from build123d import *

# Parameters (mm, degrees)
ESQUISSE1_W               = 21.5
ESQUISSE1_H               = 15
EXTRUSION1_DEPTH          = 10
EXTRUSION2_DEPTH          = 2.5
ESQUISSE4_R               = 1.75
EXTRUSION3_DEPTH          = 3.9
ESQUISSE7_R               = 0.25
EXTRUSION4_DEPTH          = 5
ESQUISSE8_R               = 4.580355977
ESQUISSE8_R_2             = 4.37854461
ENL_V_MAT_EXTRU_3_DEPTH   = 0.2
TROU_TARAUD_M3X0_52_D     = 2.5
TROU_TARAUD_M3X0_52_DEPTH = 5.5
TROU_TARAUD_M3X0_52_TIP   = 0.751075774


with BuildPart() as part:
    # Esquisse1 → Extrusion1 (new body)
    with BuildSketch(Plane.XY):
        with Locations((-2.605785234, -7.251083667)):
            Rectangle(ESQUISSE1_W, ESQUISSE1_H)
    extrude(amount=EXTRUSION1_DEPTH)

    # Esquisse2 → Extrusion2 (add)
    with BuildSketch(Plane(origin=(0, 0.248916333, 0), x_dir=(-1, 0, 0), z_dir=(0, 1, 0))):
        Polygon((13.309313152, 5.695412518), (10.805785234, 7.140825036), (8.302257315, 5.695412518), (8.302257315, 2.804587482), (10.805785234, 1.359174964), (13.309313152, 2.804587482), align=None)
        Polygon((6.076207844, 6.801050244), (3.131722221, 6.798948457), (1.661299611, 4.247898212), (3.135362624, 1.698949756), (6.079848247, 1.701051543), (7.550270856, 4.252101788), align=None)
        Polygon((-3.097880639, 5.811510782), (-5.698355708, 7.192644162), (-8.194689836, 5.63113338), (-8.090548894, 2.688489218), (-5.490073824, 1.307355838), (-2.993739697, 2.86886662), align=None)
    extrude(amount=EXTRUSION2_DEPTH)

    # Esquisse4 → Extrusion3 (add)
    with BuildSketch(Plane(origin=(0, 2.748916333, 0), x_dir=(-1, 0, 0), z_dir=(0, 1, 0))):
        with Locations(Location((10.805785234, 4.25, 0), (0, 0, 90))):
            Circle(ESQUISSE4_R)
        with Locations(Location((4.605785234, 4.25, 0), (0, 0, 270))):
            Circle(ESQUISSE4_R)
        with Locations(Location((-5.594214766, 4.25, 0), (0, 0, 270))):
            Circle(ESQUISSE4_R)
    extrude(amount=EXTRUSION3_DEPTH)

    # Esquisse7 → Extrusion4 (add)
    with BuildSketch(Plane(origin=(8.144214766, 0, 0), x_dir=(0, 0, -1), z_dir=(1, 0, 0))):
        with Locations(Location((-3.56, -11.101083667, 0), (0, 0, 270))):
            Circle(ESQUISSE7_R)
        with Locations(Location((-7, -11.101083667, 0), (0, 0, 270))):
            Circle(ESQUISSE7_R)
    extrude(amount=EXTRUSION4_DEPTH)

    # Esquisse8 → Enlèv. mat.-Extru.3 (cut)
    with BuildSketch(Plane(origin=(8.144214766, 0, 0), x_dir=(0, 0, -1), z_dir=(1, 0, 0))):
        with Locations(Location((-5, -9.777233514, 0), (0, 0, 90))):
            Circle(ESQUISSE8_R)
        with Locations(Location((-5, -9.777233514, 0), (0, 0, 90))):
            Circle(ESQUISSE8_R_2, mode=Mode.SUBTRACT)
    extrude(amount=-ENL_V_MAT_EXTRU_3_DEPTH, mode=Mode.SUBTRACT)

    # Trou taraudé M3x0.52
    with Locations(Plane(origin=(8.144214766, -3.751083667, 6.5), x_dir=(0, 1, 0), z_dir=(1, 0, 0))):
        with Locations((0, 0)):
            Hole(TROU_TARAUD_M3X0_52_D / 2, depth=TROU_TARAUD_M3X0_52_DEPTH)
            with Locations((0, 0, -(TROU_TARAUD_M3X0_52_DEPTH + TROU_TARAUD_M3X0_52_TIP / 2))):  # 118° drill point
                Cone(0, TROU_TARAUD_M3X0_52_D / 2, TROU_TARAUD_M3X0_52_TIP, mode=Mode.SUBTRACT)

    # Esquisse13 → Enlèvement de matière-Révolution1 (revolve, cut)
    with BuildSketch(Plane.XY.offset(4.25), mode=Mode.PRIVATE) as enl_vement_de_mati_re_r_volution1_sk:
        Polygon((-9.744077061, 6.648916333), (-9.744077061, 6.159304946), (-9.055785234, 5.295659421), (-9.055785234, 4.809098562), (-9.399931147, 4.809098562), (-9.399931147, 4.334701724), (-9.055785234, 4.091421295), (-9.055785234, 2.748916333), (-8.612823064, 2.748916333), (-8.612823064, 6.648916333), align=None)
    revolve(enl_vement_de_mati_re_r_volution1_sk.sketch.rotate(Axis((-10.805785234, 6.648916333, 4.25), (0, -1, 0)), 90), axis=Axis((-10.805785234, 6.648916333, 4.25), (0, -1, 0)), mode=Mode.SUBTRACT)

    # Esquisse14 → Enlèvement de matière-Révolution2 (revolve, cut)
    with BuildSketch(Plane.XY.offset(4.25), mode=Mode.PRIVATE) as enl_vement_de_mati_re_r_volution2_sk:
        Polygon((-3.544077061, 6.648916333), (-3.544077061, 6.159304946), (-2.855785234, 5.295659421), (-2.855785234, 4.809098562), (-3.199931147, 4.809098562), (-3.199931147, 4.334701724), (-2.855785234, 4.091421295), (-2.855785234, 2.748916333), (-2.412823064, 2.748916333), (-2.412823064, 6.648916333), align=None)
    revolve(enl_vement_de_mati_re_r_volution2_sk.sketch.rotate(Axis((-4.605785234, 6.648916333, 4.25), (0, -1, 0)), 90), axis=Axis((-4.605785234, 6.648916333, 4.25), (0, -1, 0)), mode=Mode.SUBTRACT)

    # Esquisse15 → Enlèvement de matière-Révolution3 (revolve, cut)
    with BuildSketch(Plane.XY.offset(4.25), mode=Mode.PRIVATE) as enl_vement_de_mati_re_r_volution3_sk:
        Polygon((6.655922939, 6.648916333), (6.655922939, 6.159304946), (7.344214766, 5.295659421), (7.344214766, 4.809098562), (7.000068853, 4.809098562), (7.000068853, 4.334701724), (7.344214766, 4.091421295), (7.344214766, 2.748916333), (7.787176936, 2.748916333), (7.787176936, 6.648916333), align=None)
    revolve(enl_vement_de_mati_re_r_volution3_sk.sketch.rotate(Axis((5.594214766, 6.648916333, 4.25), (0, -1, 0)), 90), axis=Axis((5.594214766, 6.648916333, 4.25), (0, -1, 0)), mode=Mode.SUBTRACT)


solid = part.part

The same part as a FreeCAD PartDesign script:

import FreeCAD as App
import Part
import Sketcher
from FreeCAD import Vector
Q = App.Units.Quantity


def add_polygon(sketch, points):
    """Adds a closed chain of lines whose ends are joined by coincident constraints."""
    first, n = sketch.GeometryCount, len(points)
    for a, b in zip(points, points[1:] + points[:1]):
        sketch.addGeometry(Part.LineSegment(App.Vector(*a, 0), App.Vector(*b, 0)), False)
    for i in range(n):
        sketch.addConstraint(Sketcher.Constraint("Coincident", first + i, 2, first + (i + 1) % n, 1))

doc = App.newDocument("Part")
body = doc.addObject("PartDesign::Body", "Body")

# Sketch on XY plane
sketch1 = body.newObject("Sketcher::SketchObject", "Sketch")
sketch1.AttachmentSupport = (doc.getObject("XY_Plane"), [""])
sketch1.MapMode = "FlatFace"
add_polygon(sketch1, [(-13.355785, 0.248916), (-13.355785, -14.751084), (8.144215, -14.751084), (8.144215, 0.248916)])  # lines 0-3
sketch1.addConstraint([
    Sketcher.Constraint("Vertical", 0),
    Sketcher.Constraint("Horizontal", 1),
    Sketcher.Constraint("Vertical", 2),
    Sketcher.Constraint("Horizontal", 3),
    Sketcher.Constraint("DistanceY", 0, 2, 0, 1, 15.0),
    Sketcher.Constraint("DistanceX", 1, 1, 1, 2, 21.5),
    Sketcher.Constraint("DistanceX", 0, 2, -1, 1, 13.355785),
    Sketcher.Constraint("DistanceY", 0, 2, -1, 1, 14.751084),
])
pad1 = body.newObject("PartDesign::Pad", "Pad")
pad1.Profile = sketch1
pad1.Length = 10

# Sketch on XZ plane
sketch2 = body.newObject("Sketcher::SketchObject", "Sketch001")
sketch2.AttachmentSupport = (doc.getObject("XZ_Plane"), [""])
sketch2.MapMode = "FlatFace"
sketch2.AttachmentOffset = App.Placement(Vector(0, 0, -0.248916), App.Rotation())
add_polygon(sketch2, [(-13.309313, 5.695413), (-10.805785, 7.140825), (-8.302257, 5.695413), (-8.302257, 2.804587), (-10.805785, 1.359175), (-13.309313, 2.804587)])  # lines 0-5
add_polygon(sketch2, [(-6.076208, 6.80105), (-3.131722, 6.798948), (-1.6613, 4.247898), (-3.135363, 1.69895), (-6.079848, 1.701052), (-7.550271, 4.252102)])  # lines 6-11
add_polygon(sketch2, [(3.097881, 5.811511), (5.698356, 7.192644), (8.19469, 5.631133), (8.090549, 2.688489), (5.490074, 1.307356), (2.99374, 2.868867)])  # lines 12-17
sketch2.addConstraint([
    Sketcher.Constraint("Vertical", 2),
    Sketcher.Constraint("Vertical", 5),
    Sketcher.Constraint("Parallel", 0, 3),
    Sketcher.Constraint("Parallel", 1, 4),
    Sketcher.Constraint("Parallel", 6, 9),
    Sketcher.Constraint("Parallel", 7, 10),
    Sketcher.Constraint("Parallel", 8, 11),
    Sketcher.Constraint("Parallel", 12, 15),
    Sketcher.Constraint("Parallel", 13, 16),
    Sketcher.Constraint("Parallel", 14, 17),
    Sketcher.Constraint("Horizontal", 2, 2, 4, 2),
    Sketcher.Constraint("Horizontal", 1, 2, 5, 2),
    Sketcher.Constraint("Vertical", 0, 2, 3, 2),
    Sketcher.Constraint("Equal", 6, 7),
    Sketcher.Constraint("Equal", 7, 8),
    Sketcher.Constraint("Equal", 8, 9),
    Sketcher.Constraint("Equal", 11, 12),
    Sketcher.Constraint("Equal", 12, 13),
    Sketcher.Constraint("Equal", 13, 14),
    Sketcher.Constraint("Equal", 14, 15),
    Sketcher.Constraint("Angle", 0, Q("30 deg")),
    Sketcher.Constraint("DistanceY", 8, 2, 6, 2, 5.099999),
    Sketcher.Constraint("DistanceX", 7, 2, -1, 1, 1.6613),
    Sketcher.Constraint("DistanceY", -1, 1, 7, 2, 4.247898),
    Sketcher.Constraint("DistanceY", -1, 1, 10, 2, 4.252102),
    Sketcher.Constraint("DistanceY", 8, 2, 9, 2, 0.002102),
    Sketcher.Constraint("DistanceY", 2, 2, 2, 1, 2.890825),
    Sketcher.Constraint("DistanceX", 9, 2, -1, 1, 6.079848),
    Sketcher.Constraint("DistanceX", -1, 1, 13, 2, 8.19469),
    Sketcher.Constraint("DistanceX", -1, 1, 14, 2, 8.090549),
    Sketcher.Constraint("DistanceY", -1, 1, 14, 2, 2.688489),
    Sketcher.Constraint("DistanceX", -1, 1, 16, 2, 2.99374),
    Sketcher.Constraint("DistanceY", -1, 1, 17, 2, 5.811511),
    Sketcher.Constraint("DistanceY", 3, 2, 0, 2, 5.78165),
    Sketcher.Constraint("DistanceY", 2, 2, 6, 2, 3.994361),
    Sketcher.Constraint("DistanceX", 5, 2, 6, 2, 10.177591),
])
pad2 = body.newObject("PartDesign::Pad", "Pad001")
pad2.Profile = sketch2
pad2.Length = 2.5
pad2.Reversed = True

# Sketch on XZ plane
sketch3 = body.newObject("Sketcher::SketchObject", "Sketch002")
sketch3.AttachmentSupport = (doc.getObject("XZ_Plane"), [""])
sketch3.MapMode = "FlatFace"
sketch3.AttachmentOffset = App.Placement(Vector(0, 0, -2.748916), App.Rotation())
sketch3.addGeometry([
    Part.Circle(Vector(-10.805785, 4.25, 0), Vector(0, 0, 1), 1.75),
    Part.Circle(Vector(-4.605785, 4.25, 0), Vector(0, 0, 1), 1.75),
    Part.Circle(Vector(5.594215, 4.25, 0), Vector(0, 0, 1), 1.75),
], False)
sketch3.addConstraint([
    Sketcher.Constraint("Equal", 0, 1),
    Sketcher.Constraint("Equal", 1, 2),
    Sketcher.Constraint("Horizontal", 0, 3, 1, 3),
    Sketcher.Constraint("Horizontal", 1, 3, 2, 3),
    Sketcher.Constraint("Diameter", 0, 3.5),
    Sketcher.Constraint("DistanceX", 0, 3, 1, 3, 6.2),
    Sketcher.Constraint("DistanceX", 1, 3, 2, 3, 10.2),
    Sketcher.Constraint("DistanceY", -1, 1, 0, 3, 4.25),
    Sketcher.Constraint("DistanceX", 0, 3, -1, 1, 10.805785),
])
pad3 = body.newObject("PartDesign::Pad", "Pad002")
pad3.Profile = sketch3
pad3.Length = 3.9
pad3.Reversed = True

# Sketch on YZ plane
sketch4 = body.newObject("Sketcher::SketchObject", "Sketch003")
sketch4.AttachmentSupport = (doc.getObject("YZ_Plane"), [""])
sketch4.MapMode = "FlatFace"
sketch4.AttachmentOffset = App.Placement(Vector(0, 0, 8.144215), App.Rotation())
sketch4.addGeometry([
    Part.Circle(Vector(-11.101084, 3.56, 0), Vector(0, 0, 1), 0.25),
    Part.Circle(Vector(-11.101084, 7, 0), Vector(0, 0, 1), 0.25),
], False)
sketch4.addConstraint([
    Sketcher.Constraint("Equal", 0, 1),
    Sketcher.Constraint("Vertical", 0, 3, 1, 3),
    Sketcher.Constraint("Diameter", 0, 0.5),
    Sketcher.Constraint("DistanceY", -1, 1, 1, 3, 7.0),
    Sketcher.Constraint("DistanceY", -1, 1, 0, 3, 3.56),
    Sketcher.Constraint("DistanceX", 0, 3, -1, 1, 11.101084),
])
pad4 = body.newObject("PartDesign::Pad", "Pad003")
pad4.Profile = sketch4
pad4.Length = 5

# Sketch on YZ plane
sketch5 = body.newObject("Sketcher::SketchObject", "Sketch004")
sketch5.AttachmentSupport = (doc.getObject("YZ_Plane"), [""])
sketch5.MapMode = "FlatFace"
sketch5.AttachmentOffset = App.Placement(Vector(0, 0, 8.144215), App.Rotation())
sketch5.addGeometry([
    Part.Circle(Vector(-9.777234, 5, 0), Vector(0, 0, 1), 4.580356),
    Part.Circle(Vector(-9.777234, 5, 0), Vector(0, 0, 1), 4.378545),
], False)
sketch5.addConstraint([
    Sketcher.Constraint("Coincident", 1, 3, 0, 3),
    Sketcher.Constraint("DistanceY", -1, 1, 0, 3, 5.0),
    Sketcher.Constraint("Diameter", 0, 9.160712),
    Sketcher.Constraint("Diameter", 1, 8.757089),
    Sketcher.Constraint("DistanceX", 0, 3, -1, 1, 9.777234),
])
pocket1 = body.newObject("PartDesign::Pocket", "Pocket")
pocket1.Profile = sketch5
pocket1.Length = 0.2

# Sketch on YZ plane
sketch6 = body.newObject("Sketcher::SketchObject", "Sketch005")
sketch6.AttachmentSupport = (doc.getObject("YZ_Plane"), [""])
sketch6.MapMode = "FlatFace"
sketch6.AttachmentOffset = App.Placement(Vector(0, 0, 8.144215), App.Rotation())
sketch6.addGeometry(Part.Circle(Vector(-3.751084, 6.5, 0), Vector(0, 0, 1), 1.25), False)
sketch6.addConstraint([
    Sketcher.Constraint("Diameter", 0, 2.5),
    Sketcher.Constraint("DistanceY", -1, 1, 0, 3, 6.5),
    Sketcher.Constraint("DistanceX", 0, 3, -1, 1, 3.751084),
])
doc.recompute()
hole = body.newObject("PartDesign::Hole", "Hole")
hole.Profile = sketch6
hole.ThreadType = "None"
hole.Diameter = 2.5
hole.DepthType = "Dimension"
hole.Depth = 5.5
hole.DrillPoint = "Angled"
hole.DrillPointAngle = 118

# Sketch on XY plane
sketch7 = body.newObject("Sketcher::SketchObject", "Sketch006")
sketch7.AttachmentSupport = (doc.getObject("XY_Plane"), [""])
sketch7.MapMode = "FlatFace"
sketch7.AttachmentOffset = App.Placement(Vector(0, 0, 4.25), App.Rotation())
add_polygon(sketch7, [(-9.744077, 6.648916), (-9.744077, 6.159305), (-9.055785, 5.295659), (-9.055785, 4.809099), (-9.399931, 4.809099), (-9.399931, 4.334702), (-9.055785, 4.091421), (-9.055785, 2.748916), (-8.612823, 2.748916), (-8.612823, 6.648916)])  # lines 0-9
sketch7.addGeometry(Part.LineSegment(Vector(-10.805785, 6.648916, 0), Vector(-10.805785, 2.748916, 0)), True)  # axis
sketch7.addConstraint([
    Sketcher.Constraint("Vertical", 0),
    Sketcher.Constraint("Vertical", 2),
    Sketcher.Constraint("Horizontal", 3),
    Sketcher.Constraint("Vertical", 4),
    Sketcher.Constraint("Vertical", 6),
    Sketcher.Constraint("Horizontal", 7),
    Sketcher.Constraint("Vertical", 8),
    Sketcher.Constraint("Horizontal", 9),
    Sketcher.Constraint("Vertical", 10),
    Sketcher.Constraint("Horizontal", 9, 2, 10, 1),
    Sketcher.Constraint("Horizontal", 7, 2, 10, 2),
    Sketcher.Constraint("Vertical", 2, 2, 5, 2),
    Sketcher.Constraint("DistanceY", 8, 1, 8, 2, 3.9),
    Sketcher.Constraint("DistanceX", 10, 1, 1, 2, 1.75),
    Sketcher.Constraint("DistanceY", 0, 2, 0, 1, 0.489611),
    Sketcher.Constraint("DistanceY", 2, 2, 2, 1, 0.486561),
    Sketcher.Constraint("DistanceY", -1, 1, 2, 2, 4.809099),
    Sketcher.Constraint("DistanceY", -1, 1, 4, 2, 4.334702),
    Sketcher.Constraint("Distance", 1, 1.104368),
    Sketcher.Constraint("Distance", 5, 0.421452),
    Sketcher.Constraint("DistanceX", 3, 2, 3, 1, 0.344146),
    Sketcher.Constraint("DistanceX", 7, 1, 7, 2, 0.442962),
    Sketcher.Constraint("DistanceX", 9, 2, 9, 1, 1.131254),
    Sketcher.Constraint("DistanceX", 3, 2, -1, 1, 9.399931),
])
groove = body.newObject("PartDesign::Groove", "Groove")
groove.Profile = sketch7
groove.ReferenceAxis = (sketch7, ["Axis0"])
groove.Angle = 360

# Sketch on XY plane
sketch8 = body.newObject("Sketcher::SketchObject", "Sketch007")
sketch8.AttachmentSupport = (doc.getObject("XY_Plane"), [""])
sketch8.MapMode = "FlatFace"
sketch8.AttachmentOffset = App.Placement(Vector(0, 0, 4.25), App.Rotation())
add_polygon(sketch8, [(-3.544077, 6.648916), (-3.544077, 6.159305), (-2.855785, 5.295659), (-2.855785, 4.809099), (-3.199931, 4.809099), (-3.199931, 4.334702), (-2.855785, 4.091421), (-2.855785, 2.748916), (-2.412823, 2.748916), (-2.412823, 6.648916)])  # lines 0-9
sketch8.addGeometry(Part.LineSegment(Vector(-4.605785, 6.648916, 0), Vector(-4.605785, 2.748916, 0)), True)  # axis
sketch8.addConstraint([
    Sketcher.Constraint("Vertical", 0),
    Sketcher.Constraint("Vertical", 2),
    Sketcher.Constraint("Horizontal", 3),
    Sketcher.Constraint("Vertical", 4),
    Sketcher.Constraint("Vertical", 6),
    Sketcher.Constraint("Horizontal", 7),
    Sketcher.Constraint("Vertical", 8),
    Sketcher.Constraint("Horizontal", 9),
    Sketcher.Constraint("Vertical", 10),
    Sketcher.Constraint("Horizontal", 9, 2, 10, 1),
    Sketcher.Constraint("Horizontal", 7, 2, 10, 2),
    Sketcher.Constraint("Vertical", 2, 2, 5, 2),
    Sketcher.Constraint("DistanceY", 8, 1, 8, 2, 3.9),
    Sketcher.Constraint("DistanceX", 10, 1, 1, 2, 1.75),
    Sketcher.Constraint("DistanceY", 0, 2, 0, 1, 0.489611),
    Sketcher.Constraint("DistanceY", 2, 2, 2, 1, 0.486561),
    Sketcher.Constraint("DistanceY", -1, 1, 2, 2, 4.809099),
    Sketcher.Constraint("DistanceY", -1, 1, 4, 2, 4.334702),
    Sketcher.Constraint("Distance", 1, 1.104368),
    Sketcher.Constraint("Distance", 5, 0.421452),
    Sketcher.Constraint("DistanceX", 3, 2, 3, 1, 0.344146),
    Sketcher.Constraint("DistanceX", 7, 1, 7, 2, 0.442962),
    Sketcher.Constraint("DistanceX", 9, 2, 9, 1, 1.131254),
    Sketcher.Constraint("DistanceX", 3, 2, -1, 1, 3.199931),
])
groove2 = body.newObject("PartDesign::Groove", "Groove001")
groove2.Profile = sketch8
groove2.ReferenceAxis = (sketch8, ["Axis0"])
groove2.Angle = 360

# Sketch on XY plane
sketch9 = body.newObject("Sketcher::SketchObject", "Sketch008")
sketch9.AttachmentSupport = (doc.getObject("XY_Plane"), [""])
sketch9.MapMode = "FlatFace"
sketch9.AttachmentOffset = App.Placement(Vector(0, 0, 4.25), App.Rotation())
add_polygon(sketch9, [(6.655923, 6.648916), (6.655923, 6.159305), (7.344215, 5.295659), (7.344215, 4.809099), (7.000069, 4.809099), (7.000069, 4.334702), (7.344215, 4.091421), (7.344215, 2.748916), (7.787177, 2.748916), (7.787177, 6.648916)])  # lines 0-9
sketch9.addGeometry(Part.LineSegment(Vector(5.594215, 6.648916, 0), Vector(5.594215, 2.748916, 0)), True)  # axis
sketch9.addConstraint([
    Sketcher.Constraint("Vertical", 0),
    Sketcher.Constraint("Vertical", 2),
    Sketcher.Constraint("Horizontal", 3),
    Sketcher.Constraint("Vertical", 4),
    Sketcher.Constraint("Vertical", 6),
    Sketcher.Constraint("Horizontal", 7),
    Sketcher.Constraint("Vertical", 8),
    Sketcher.Constraint("Horizontal", 9),
    Sketcher.Constraint("Vertical", 10),
    Sketcher.Constraint("Horizontal", 9, 2, 10, 1),
    Sketcher.Constraint("Horizontal", 7, 2, 10, 2),
    Sketcher.Constraint("Vertical", 2, 2, 5, 2),
    Sketcher.Constraint("DistanceY", 8, 1, 8, 2, 3.9),
    Sketcher.Constraint("DistanceX", 10, 1, 1, 2, 1.75),
    Sketcher.Constraint("DistanceY", 0, 2, 0, 1, 0.489611),
    Sketcher.Constraint("DistanceY", 2, 2, 2, 1, 0.486561),
    Sketcher.Constraint("DistanceY", -1, 1, 2, 2, 4.809099),
    Sketcher.Constraint("DistanceY", -1, 1, 4, 2, 4.334702),
    Sketcher.Constraint("Distance", 1, 1.104368),
    Sketcher.Constraint("Distance", 5, 0.421452),
    Sketcher.Constraint("DistanceX", 3, 2, 3, 1, 0.344146),
    Sketcher.Constraint("DistanceX", 7, 1, 7, 2, 0.442962),
    Sketcher.Constraint("DistanceX", 9, 2, 9, 1, 1.131254),
    Sketcher.Constraint("DistanceX", -1, 1, 3, 2, 7.000069),
])
groove3 = body.newObject("PartDesign::Groove", "Groove002")
groove3.Profile = sketch9
groove3.ReferenceAxis = (sketch9, ["Axis0"])
groove3.Angle = 360

doc.recompute()
